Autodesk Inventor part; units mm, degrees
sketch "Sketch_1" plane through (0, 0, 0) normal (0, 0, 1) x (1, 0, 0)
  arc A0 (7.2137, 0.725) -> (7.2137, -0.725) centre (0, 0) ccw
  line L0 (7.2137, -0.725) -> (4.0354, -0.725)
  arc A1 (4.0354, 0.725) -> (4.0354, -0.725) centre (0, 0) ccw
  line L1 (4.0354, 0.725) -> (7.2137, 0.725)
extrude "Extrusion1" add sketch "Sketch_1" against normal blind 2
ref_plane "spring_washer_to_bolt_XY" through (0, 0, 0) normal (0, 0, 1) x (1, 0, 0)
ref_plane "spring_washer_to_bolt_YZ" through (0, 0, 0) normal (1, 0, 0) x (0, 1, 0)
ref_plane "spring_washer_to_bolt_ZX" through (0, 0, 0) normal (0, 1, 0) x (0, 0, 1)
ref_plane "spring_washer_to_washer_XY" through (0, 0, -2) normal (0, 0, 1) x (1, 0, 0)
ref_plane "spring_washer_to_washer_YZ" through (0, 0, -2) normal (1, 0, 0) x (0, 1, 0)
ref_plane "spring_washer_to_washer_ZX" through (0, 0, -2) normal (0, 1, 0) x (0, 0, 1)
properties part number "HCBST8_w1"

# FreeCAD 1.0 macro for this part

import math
import FreeCAD as App
import Part
import Sketcher

V = App.Vector
Q = App.Units.Quantity

doc = App.newDocument("Part")
body = doc.addObject("PartDesign::Body", "Body")

sketch1 = body.newObject("Sketcher::SketchObject", "Sketch")
sketch1.AttachmentSupport = (doc.getObject("XY_Plane"), [""])
sketch1.MapMode = "FlatFace"
sketch1.addGeometry(Part.LineSegment(V(4, 0.7, 0), V(7.2, 0.7, 0)), False)
sketch1.addGeometry(Part.ArcOfCircle(Part.Circle(V(0, 0, 0), V(0, 0, 1), 7.3), math.radians(6), math.radians(354)), False)
sketch1.addGeometry(Part.LineSegment(V(7.2, -0.7, 0), V(4, -0.7, 0)), False)
sketch1.addGeometry(Part.ArcOfCircle(Part.Circle(V(0, 0, 0), V(0, 0, 1), 4.1), math.radians(10), math.radians(350)), False)
sketch1.addConstraint(Sketcher.Constraint("Coincident", 0, 2, 1, 1))
sketch1.addConstraint(Sketcher.Constraint("Coincident", 1, 2, 2, 1))
sketch1.addConstraint(Sketcher.Constraint("Coincident", 2, 2, 3, 2))
sketch1.addConstraint(Sketcher.Constraint("Coincident", 3, 1, 0, 1))
sketch1.addConstraint(Sketcher.Constraint("Horizontal", 0))
sketch1.addConstraint(Sketcher.Constraint("Horizontal", 2))
sketch1.addConstraint(Sketcher.Constraint("Coincident", 1, 3, -1, 1))
sketch1.addConstraint(Sketcher.Constraint("Coincident", 3, 3, -1, 1))
sketch1.addConstraint(Sketcher.Constraint("Vertical", 0, 2, 1, 2))
sketch1.addConstraint(Sketcher.Constraint("Radius", 3, Q("4.1 mm")))
sketch1.addConstraint(Sketcher.Constraint("Radius", 1, Q("7.25 mm")))
sketch1.addConstraint(Sketcher.Constraint("DistanceY", 1, 2, 0, 2, Q("1.45 mm")))
pad1 = body.newObject("PartDesign::Pad", "Pad")
pad1.Profile = sketch1
pad1.Length = 2
pad1.Reversed = True

doc.recompute()
